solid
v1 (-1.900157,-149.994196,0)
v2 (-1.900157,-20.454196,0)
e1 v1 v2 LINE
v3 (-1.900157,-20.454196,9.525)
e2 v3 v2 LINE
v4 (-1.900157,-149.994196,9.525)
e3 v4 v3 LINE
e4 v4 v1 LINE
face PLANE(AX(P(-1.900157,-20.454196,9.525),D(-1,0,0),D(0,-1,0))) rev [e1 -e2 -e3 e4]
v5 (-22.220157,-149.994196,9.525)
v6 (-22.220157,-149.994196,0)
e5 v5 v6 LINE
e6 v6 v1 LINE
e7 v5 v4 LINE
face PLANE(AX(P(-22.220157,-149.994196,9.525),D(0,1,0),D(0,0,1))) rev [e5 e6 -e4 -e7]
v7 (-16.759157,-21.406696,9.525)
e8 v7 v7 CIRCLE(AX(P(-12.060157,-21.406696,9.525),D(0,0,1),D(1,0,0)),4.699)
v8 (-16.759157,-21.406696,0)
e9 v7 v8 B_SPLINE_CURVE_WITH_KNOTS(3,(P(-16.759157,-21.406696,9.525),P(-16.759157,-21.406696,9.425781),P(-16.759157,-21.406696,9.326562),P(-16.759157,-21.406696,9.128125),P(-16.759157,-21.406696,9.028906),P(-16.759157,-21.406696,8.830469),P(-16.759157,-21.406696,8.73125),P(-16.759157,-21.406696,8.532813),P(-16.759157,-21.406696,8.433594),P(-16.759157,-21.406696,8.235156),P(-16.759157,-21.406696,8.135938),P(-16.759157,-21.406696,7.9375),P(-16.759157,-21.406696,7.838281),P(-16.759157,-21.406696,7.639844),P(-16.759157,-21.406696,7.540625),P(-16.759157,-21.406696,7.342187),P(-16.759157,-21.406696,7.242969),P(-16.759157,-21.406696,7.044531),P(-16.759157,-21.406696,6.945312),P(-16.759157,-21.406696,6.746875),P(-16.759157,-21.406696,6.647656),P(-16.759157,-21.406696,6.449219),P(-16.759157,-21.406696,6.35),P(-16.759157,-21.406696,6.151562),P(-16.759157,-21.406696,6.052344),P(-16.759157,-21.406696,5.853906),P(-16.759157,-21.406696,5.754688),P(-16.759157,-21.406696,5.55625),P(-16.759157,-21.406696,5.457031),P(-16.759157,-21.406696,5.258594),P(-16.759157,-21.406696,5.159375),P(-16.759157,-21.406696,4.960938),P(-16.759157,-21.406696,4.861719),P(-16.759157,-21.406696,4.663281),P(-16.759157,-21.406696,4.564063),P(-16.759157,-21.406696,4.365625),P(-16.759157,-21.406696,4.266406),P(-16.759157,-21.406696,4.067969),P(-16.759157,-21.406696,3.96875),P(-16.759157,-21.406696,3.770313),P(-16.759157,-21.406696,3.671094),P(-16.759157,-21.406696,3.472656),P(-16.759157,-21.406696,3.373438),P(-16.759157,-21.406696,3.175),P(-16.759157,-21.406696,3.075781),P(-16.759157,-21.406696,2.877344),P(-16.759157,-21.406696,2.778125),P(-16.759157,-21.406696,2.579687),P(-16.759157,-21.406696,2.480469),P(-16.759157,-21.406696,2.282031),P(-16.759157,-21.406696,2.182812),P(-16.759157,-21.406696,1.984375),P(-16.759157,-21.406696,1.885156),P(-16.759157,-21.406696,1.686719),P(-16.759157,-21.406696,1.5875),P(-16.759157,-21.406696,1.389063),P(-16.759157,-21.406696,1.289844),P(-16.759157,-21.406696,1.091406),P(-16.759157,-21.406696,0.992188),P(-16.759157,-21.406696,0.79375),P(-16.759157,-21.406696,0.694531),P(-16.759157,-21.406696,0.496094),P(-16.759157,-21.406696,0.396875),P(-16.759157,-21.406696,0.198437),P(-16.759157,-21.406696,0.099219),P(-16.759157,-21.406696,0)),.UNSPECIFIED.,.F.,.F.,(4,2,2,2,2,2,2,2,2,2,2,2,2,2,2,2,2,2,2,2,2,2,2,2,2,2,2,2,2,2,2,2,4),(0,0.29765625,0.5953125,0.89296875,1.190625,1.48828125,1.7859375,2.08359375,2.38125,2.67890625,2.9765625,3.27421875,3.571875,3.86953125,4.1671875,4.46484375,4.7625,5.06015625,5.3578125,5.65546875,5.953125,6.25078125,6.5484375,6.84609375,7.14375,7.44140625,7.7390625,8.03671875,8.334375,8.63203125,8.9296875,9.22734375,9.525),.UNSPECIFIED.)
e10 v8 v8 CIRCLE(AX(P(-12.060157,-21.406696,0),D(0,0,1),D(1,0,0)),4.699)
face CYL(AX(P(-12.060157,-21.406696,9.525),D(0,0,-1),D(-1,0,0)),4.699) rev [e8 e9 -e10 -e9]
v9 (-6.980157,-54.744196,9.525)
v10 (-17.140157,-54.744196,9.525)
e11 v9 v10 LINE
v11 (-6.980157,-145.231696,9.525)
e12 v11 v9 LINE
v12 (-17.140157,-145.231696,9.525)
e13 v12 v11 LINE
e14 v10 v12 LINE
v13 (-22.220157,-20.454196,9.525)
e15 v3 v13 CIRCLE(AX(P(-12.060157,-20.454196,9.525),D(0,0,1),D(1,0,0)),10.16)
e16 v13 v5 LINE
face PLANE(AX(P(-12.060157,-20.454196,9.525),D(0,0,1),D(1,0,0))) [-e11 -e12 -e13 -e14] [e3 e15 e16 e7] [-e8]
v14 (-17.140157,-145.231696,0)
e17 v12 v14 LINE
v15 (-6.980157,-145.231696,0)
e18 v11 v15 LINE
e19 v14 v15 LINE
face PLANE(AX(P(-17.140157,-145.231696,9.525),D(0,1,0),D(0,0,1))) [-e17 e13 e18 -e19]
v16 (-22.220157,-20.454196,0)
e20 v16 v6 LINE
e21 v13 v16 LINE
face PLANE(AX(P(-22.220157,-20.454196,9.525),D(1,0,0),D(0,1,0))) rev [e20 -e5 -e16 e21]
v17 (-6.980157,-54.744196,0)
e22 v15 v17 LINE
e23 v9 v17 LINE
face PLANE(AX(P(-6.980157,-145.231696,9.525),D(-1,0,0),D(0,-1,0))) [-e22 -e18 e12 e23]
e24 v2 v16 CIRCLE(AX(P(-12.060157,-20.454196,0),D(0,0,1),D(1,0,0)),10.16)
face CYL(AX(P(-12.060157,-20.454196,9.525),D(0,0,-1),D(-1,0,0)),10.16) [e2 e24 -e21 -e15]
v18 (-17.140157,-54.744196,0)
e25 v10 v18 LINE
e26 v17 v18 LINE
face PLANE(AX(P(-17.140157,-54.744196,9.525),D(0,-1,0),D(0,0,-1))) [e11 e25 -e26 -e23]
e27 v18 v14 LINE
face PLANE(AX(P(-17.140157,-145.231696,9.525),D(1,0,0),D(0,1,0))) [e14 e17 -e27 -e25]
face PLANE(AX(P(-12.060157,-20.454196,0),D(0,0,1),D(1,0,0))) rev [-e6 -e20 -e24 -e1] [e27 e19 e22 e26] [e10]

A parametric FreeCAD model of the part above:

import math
import FreeCAD as App
import Part
import Sketcher
from FreeCAD import Vector
Q = App.Units.Quantity

doc = App.newDocument("Part")
body = doc.addObject("PartDesign::Body", "Body")

sketch1 = body.newObject("Sketcher::SketchObject", "Sketch")
sketch1.AttachmentSupport = (doc.getObject("XY_Plane"), [""])
sketch1.MapMode = "FlatFace"
sketch1.addGeometry(Part.LineSegment(Vector(-22.2, -20.5, 0), Vector(-22.2, -150, 0)), False)
sketch1.addGeometry(Part.LineSegment(Vector(-22.2, -150, 0), Vector(-1.9, -150, 0)), False)
sketch1.addGeometry(Part.LineSegment(Vector(-1.9, -150, 0), Vector(-1.9, -20.5, 0)), False)
sketch1.addGeometry(Part.ArcOfCircle(Part.Circle(Vector(-12.1, -20.5, 0), Vector(0, 0, 1), 10.2), math.radians(0), math.radians(180)), False)
sketch1.addGeometry(Part.LineSegment(Vector(-7, -145.2, 0), Vector(-17.1, -145.2, 0)), False)
sketch1.addGeometry(Part.LineSegment(Vector(-17.1, -145.2, 0), Vector(-17.1, -54.7, 0)), False)
sketch1.addGeometry(Part.LineSegment(Vector(-17.1, -54.7, 0), Vector(-7, -54.7, 0)), False)
sketch1.addGeometry(Part.LineSegment(Vector(-7, -54.7, 0), Vector(-7, -145.2, 0)), False)
sketch1.addGeometry(Part.Circle(Vector(-12.1, -21.4, 0), Vector(0, 0, 1), 4.7), False)
sketch1.addConstraint(Sketcher.Constraint("Coincident", 0, 2, 1, 1))
sketch1.addConstraint(Sketcher.Constraint("Coincident", 1, 2, 2, 1))
sketch1.addConstraint(Sketcher.Constraint("Tangent", 2, 2, 3, 1))
sketch1.addConstraint(Sketcher.Constraint("Tangent", 3, 2, 0, 1))
sketch1.addConstraint(Sketcher.Constraint("Coincident", 4, 2, 5, 1))
sketch1.addConstraint(Sketcher.Constraint("Coincident", 5, 2, 6, 1))
sketch1.addConstraint(Sketcher.Constraint("Coincident", 6, 2, 7, 1))
sketch1.addConstraint(Sketcher.Constraint("Coincident", 7, 2, 4, 1))
sketch1.addConstraint(Sketcher.Constraint("Vertical", 0))
sketch1.addConstraint(Sketcher.Constraint("Horizontal", 1))
sketch1.addConstraint(Sketcher.Constraint("Vertical", 2))
sketch1.addConstraint(Sketcher.Constraint("Horizontal", 4))
sketch1.addConstraint(Sketcher.Constraint("Vertical", 5))
sketch1.addConstraint(Sketcher.Constraint("Horizontal", 6))
sketch1.addConstraint(Sketcher.Constraint("Vertical", 7))
sketch1.addConstraint(Sketcher.Constraint("Vertical", 3, 3, 8, 3))
sketch1.addConstraint(Sketcher.Constraint("Radius", 3, Q("0.4 in")))
sketch1.addConstraint(Sketcher.Constraint("Diameter", 8, Q("0.37 in")))
sketch1.addConstraint(Sketcher.Constraint("DistanceX", 4, 2, 4, 1, Q("0.4 in")))
sketch1.addConstraint(Sketcher.Constraint("DistanceY", 0, 2, 0, 1, Q("5.1 in")))
sketch1.addConstraint(Sketcher.Constraint("DistanceX", 0, 2, 4, 2, Q("0.2 in")))
sketch1.addConstraint(Sketcher.Constraint("DistanceY", 5, 1, 5, 2, Q("3.5625 in")))
sketch1.addConstraint(Sketcher.Constraint("DistanceY", 5, 2, 3, 3, Q("1.35 in")))
sketch1.addConstraint(Sketcher.Constraint("DistanceY", 0, 2, 8, 3, Q("5.0625 in")))
sketch1.addConstraint(Sketcher.Constraint("DistanceX", 3, 3, -1, 1, 12.060157))
sketch1.addConstraint(Sketcher.Constraint("DistanceY", 3, 3, -1, 1, 20.454196))
pad1 = body.newObject("PartDesign::Pad", "Pad")
pad1.Profile = sketch1
pad1.Length = Q("0.375 in")

doc.recompute()
